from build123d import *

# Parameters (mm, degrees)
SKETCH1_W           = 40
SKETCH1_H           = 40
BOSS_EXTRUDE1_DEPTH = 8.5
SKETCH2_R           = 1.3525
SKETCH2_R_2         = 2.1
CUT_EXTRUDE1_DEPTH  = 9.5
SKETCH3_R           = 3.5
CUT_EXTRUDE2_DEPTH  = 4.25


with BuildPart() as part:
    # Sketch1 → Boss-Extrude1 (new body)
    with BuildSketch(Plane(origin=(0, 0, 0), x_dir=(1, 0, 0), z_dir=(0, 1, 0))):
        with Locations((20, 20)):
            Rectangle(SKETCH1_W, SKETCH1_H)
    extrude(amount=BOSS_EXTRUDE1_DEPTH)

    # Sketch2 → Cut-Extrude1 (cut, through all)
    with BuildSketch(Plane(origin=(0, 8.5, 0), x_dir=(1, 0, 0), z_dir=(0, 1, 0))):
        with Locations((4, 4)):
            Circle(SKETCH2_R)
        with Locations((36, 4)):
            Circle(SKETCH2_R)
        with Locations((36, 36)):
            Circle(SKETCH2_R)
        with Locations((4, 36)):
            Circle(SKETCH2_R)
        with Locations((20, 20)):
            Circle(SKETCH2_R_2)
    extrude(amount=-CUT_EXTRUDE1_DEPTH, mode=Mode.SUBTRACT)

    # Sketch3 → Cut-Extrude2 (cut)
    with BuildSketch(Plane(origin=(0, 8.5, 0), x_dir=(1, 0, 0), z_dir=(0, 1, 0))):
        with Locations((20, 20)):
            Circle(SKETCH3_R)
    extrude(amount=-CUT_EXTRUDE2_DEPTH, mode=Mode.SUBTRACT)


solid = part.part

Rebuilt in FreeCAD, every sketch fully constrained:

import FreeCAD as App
import Part
import Sketcher


def add_polygon(sketch, points):
    """Adds a closed chain of lines whose ends are joined by coincident constraints."""
    first, n = sketch.GeometryCount, len(points)
    for a, b in zip(points, points[1:] + points[:1]):
        sketch.addGeometry(Part.LineSegment(App.Vector(*a, 0), App.Vector(*b, 0)), False)
    for i in range(n):
        sketch.addConstraint(Sketcher.Constraint("Coincident", first + i, 2, first + (i + 1) % n, 1))

doc = App.newDocument("Part")
body = doc.addObject("PartDesign::Body", "Body")

# Sketch on XZ plane
sketch1 = body.newObject("Sketcher::SketchObject", "Sketch")
sketch1.AttachmentSupport = (doc.getObject("XZ_Plane"), [""])
sketch1.MapMode = "FlatFace"
add_polygon(sketch1, [(0, -40), (0, 0), (40, 0), (40, -40)])  # lines 0-3
sketch1.addConstraint([
    Sketcher.Constraint("Vertical", 0),
    Sketcher.Constraint("Horizontal", 1),
    Sketcher.Constraint("Vertical", 2),
    Sketcher.Constraint("Horizontal", 3),
    Sketcher.Constraint("Coincident", 0, 2, -1, 1),
    Sketcher.Constraint("Equal", 3, 0),
    Sketcher.Constraint("DistanceX", 1, 1, 1, 2, 40.0),
])
pad1 = body.newObject("PartDesign::Pad", "Pad")
pad1.Profile = sketch1
pad1.Length = 8.5
pad1.Reversed = True

# Sketch on XZ plane
sketch2 = body.newObject("Sketcher::SketchObject", "Sketch001")
sketch2.AttachmentSupport = (doc.getObject("XZ_Plane"), [""])
sketch2.MapMode = "FlatFace"
sketch2.AttachmentOffset = App.Placement(App.Vector(0, 0, -8.5), App.Rotation())
sketch2.addGeometry([
    Part.Circle(App.Vector(4, -4, 0), App.Vector(0, 0, 1), 1.4),  # 0
    Part.Circle(App.Vector(36, -4, 0), App.Vector(0, 0, 1), 1.4),  # 1
    Part.Circle(App.Vector(36, -36, 0), App.Vector(0, 0, 1), 1.4),  # 2
    Part.Circle(App.Vector(4, -36, 0), App.Vector(0, 0, 1), 1.4),  # 3
    Part.Circle(App.Vector(20, -20, 0), App.Vector(0, 0, 1), 2.1),  # 4
], False)
sketch2.addConstraint([
    Sketcher.Constraint("Equal", 0, 1),
    Sketcher.Constraint("Equal", 1, 2),
    Sketcher.Constraint("Equal", 2, 3),
    Sketcher.Constraint("Horizontal", 0, 3, 1, 3),
    Sketcher.Constraint("Horizontal", 2, 3, 3, 3),
    Sketcher.Constraint("Vertical", 1, 3, 2, 3),
    Sketcher.Constraint("Vertical", 0, 3, 3, 3),
    Sketcher.Constraint("Diameter", 4, 4.2),
    Sketcher.Constraint("Diameter", 0, 2.705),
    Sketcher.Constraint("DistanceX", -1, 1, 0, 3, 4.0),
    Sketcher.Constraint("DistanceY", 0, 3, -1, 1, 4.0),
    Sketcher.Constraint("DistanceX", -1, 1, 1, 3, 36.0),
    Sketcher.Constraint("DistanceY", 2, 3, -1, 1, 36.0),
    Sketcher.Constraint("DistanceX", -1, 1, 4, 3, 20.0),
    Sketcher.Constraint("DistanceY", 4, 3, -1, 1, 20.0),
])
pocket1 = body.newObject("PartDesign::Pocket", "Pocket")
pocket1.Profile = sketch2
pocket1.Type = "ThroughAll"
pocket1.Reversed = True

# Sketch on XZ plane
sketch3 = body.newObject("Sketcher::SketchObject", "Sketch002")
sketch3.AttachmentSupport = (doc.getObject("XZ_Plane"), [""])
sketch3.MapMode = "FlatFace"
sketch3.AttachmentOffset = App.Placement(App.Vector(0, 0, -8.5), App.Rotation())
sketch3.addGeometry(Part.Circle(App.Vector(20, -20, 0), App.Vector(0, 0, 1), 3.5), False)
sketch3.addConstraint([
    Sketcher.Constraint("Diameter", 0, 7.0),
    Sketcher.Constraint("DistanceX", -1, 1, 0, 3, 20.0),
    Sketcher.Constraint("DistanceY", 0, 3, -1, 1, 20.0),
])
pocket2 = body.newObject("PartDesign::Pocket", "Pocket001")
pocket2.Profile = sketch3
pocket2.Length = 4.25
pocket2.Reversed = True

doc.recompute()
